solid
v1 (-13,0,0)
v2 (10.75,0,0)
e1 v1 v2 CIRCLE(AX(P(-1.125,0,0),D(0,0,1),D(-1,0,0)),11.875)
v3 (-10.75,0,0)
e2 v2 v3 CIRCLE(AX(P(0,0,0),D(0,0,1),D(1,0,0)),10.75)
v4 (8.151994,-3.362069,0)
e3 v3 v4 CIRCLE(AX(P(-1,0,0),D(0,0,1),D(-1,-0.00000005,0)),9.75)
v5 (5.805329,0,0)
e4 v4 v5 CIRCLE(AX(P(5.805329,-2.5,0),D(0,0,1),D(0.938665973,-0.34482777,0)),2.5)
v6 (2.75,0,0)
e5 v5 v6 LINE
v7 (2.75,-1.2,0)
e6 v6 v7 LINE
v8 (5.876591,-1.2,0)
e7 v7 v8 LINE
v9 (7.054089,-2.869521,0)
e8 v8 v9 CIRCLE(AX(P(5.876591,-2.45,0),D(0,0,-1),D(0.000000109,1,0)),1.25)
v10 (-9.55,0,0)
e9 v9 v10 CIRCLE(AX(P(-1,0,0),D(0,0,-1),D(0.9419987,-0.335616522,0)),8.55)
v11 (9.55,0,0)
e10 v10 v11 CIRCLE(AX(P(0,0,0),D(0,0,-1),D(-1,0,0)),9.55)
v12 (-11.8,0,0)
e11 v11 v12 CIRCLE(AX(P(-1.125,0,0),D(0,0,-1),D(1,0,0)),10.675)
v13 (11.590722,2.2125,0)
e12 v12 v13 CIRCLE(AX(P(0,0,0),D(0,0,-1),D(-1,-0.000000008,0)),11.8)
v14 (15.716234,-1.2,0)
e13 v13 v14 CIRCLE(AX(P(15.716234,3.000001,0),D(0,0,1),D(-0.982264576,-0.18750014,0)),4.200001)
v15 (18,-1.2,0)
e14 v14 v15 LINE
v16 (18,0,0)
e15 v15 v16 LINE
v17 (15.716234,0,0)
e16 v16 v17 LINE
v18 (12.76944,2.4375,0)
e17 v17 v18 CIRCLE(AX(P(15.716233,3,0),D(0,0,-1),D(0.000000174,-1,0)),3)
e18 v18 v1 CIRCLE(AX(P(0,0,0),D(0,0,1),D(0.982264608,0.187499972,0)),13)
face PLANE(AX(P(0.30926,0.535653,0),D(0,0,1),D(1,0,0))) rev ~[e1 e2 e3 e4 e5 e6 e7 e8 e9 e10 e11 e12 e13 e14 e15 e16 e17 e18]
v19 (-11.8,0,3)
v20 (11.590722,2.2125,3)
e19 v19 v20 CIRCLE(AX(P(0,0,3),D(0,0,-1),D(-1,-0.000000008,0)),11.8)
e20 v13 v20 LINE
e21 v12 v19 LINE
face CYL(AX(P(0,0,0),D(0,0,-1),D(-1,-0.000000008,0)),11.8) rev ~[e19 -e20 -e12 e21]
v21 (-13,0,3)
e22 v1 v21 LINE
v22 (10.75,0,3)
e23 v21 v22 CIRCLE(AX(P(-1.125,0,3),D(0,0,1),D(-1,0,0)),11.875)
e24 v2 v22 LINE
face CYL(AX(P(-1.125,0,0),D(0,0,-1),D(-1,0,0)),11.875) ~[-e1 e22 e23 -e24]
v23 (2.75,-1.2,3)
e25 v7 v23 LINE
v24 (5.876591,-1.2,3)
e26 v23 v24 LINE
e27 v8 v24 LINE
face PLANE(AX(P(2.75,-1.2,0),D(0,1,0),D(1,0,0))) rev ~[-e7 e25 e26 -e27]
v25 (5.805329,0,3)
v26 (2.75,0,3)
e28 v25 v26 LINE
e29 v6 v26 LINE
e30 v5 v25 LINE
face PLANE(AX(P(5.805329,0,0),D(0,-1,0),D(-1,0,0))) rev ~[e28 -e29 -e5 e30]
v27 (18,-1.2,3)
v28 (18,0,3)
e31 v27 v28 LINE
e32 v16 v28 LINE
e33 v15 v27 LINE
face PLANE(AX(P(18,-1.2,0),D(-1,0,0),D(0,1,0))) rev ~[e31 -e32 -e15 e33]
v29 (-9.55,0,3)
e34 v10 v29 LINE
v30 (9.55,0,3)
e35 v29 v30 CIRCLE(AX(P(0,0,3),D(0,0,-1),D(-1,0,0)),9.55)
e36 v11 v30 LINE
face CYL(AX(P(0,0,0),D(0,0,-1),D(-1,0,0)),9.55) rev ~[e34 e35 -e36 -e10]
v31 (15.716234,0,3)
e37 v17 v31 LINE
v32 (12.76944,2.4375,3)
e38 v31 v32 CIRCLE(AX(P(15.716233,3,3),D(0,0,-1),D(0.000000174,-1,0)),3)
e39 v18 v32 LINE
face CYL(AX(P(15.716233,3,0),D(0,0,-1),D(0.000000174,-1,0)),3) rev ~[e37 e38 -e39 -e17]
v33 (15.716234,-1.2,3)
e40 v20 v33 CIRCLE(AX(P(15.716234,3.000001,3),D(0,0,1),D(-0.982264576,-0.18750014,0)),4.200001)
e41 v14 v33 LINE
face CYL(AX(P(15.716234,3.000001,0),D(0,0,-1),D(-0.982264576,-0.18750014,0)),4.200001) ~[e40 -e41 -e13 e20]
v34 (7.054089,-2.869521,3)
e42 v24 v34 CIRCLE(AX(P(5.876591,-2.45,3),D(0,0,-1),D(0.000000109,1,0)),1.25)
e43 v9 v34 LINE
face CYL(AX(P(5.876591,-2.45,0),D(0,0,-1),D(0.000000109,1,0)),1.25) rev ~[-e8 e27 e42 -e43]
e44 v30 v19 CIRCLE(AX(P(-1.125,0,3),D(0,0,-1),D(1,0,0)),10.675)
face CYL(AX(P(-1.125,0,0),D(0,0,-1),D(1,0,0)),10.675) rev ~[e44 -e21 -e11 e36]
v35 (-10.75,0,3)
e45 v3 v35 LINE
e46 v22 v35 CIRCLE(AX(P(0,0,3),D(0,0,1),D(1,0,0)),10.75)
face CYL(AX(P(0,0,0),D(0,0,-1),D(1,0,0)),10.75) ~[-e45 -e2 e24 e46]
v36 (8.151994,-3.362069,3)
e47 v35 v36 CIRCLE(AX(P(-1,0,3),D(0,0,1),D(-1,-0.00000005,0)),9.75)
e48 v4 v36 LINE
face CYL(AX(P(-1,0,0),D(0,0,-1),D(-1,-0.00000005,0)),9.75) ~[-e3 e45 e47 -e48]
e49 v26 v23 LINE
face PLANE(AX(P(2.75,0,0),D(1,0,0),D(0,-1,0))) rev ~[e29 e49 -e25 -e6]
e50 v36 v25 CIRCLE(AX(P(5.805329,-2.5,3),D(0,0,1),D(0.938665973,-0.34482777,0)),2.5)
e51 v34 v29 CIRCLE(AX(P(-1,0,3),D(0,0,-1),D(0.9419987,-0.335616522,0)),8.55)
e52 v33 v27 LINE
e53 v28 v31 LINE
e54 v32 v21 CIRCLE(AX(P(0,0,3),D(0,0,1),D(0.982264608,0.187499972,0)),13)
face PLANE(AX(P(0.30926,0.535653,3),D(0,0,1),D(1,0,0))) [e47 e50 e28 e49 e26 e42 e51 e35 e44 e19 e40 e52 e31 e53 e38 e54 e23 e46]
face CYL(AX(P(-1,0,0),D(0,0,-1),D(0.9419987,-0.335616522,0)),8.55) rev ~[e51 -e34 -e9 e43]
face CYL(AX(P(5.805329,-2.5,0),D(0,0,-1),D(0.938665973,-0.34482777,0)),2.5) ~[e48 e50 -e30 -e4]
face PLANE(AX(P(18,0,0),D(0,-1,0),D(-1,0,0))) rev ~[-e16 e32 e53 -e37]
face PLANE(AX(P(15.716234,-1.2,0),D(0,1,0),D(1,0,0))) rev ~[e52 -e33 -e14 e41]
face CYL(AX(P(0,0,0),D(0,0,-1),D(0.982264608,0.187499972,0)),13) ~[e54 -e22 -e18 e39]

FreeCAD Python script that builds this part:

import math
import FreeCAD as App
import Part
import Sketcher

doc = App.newDocument("Part")
body = doc.addObject("PartDesign::Body", "Body")

# Sketch on XY plane
sketch1 = body.newObject("Sketcher::SketchObject", "Sketch")
sketch1.AttachmentSupport = (doc.getObject("XY_Plane"), [""])
sketch1.MapMode = "FlatFace"
sketch1.addGeometry([
    Part.ArcOfCircle(Part.Circle(App.Vector(15.716233, 3, 0), App.Vector(0, 0, 1), 3), math.radians(-169.193083), math.radians(-89.99999)),  # 0
    Part.ArcOfCircle(Part.Circle(App.Vector(0, 0, 0), App.Vector(0, 0, 1), 13), math.radians(10.806921), math.radians(180.000002)),  # 1
    Part.ArcOfCircle(Part.Circle(App.Vector(-1.125, 0, 0), App.Vector(0, 0, 1), 11.875), math.radians(180), math.radians(360)),  # 2
    Part.ArcOfCircle(Part.Circle(App.Vector(0, 0, 0), App.Vector(0, 0, 1), 10.75), math.radians(0), math.radians(180)),  # 3
    Part.ArcOfCircle(Part.Circle(App.Vector(-1, 0, 0), App.Vector(0, 0, 1), 9.75), math.radians(-179.999997), math.radians(-20.171274)),  # 4
    Part.ArcOfCircle(Part.Circle(App.Vector(5.805329, -2.5, 0), App.Vector(0, 0, 1), 2.5), math.radians(-20.171283), math.radians(90.000008)),  # 5
    Part.LineSegment(App.Vector(5.805329, 0, 0), App.Vector(2.75, 0, 0)),  # 6
    Part.LineSegment(App.Vector(2.75, 0, 0), App.Vector(2.75, -1.2, 0)),  # 7
    Part.LineSegment(App.Vector(2.75, -1.2, 0), App.Vector(5.876591, -1.2, 0)),  # 8
    Part.ArcOfCircle(Part.Circle(App.Vector(5.876591, -2.45, 0), App.Vector(0, 0, 1), 1.25), math.radians(-19.610055), math.radians(89.999994)),  # 9
    Part.ArcOfCircle(Part.Circle(App.Vector(-1, 0, 0), App.Vector(0, 0, 1), 8.55), math.radians(-179.999998), math.radians(-19.610033)),  # 10
    Part.ArcOfCircle(Part.Circle(App.Vector(0, 0, 0), App.Vector(0, 0, 1), 9.55), math.radians(0), math.radians(180)),  # 11
    Part.ArcOfCircle(Part.Circle(App.Vector(-1.125, 0, 0), App.Vector(0, 0, 1), 10.675), math.radians(180), math.radians(360)),  # 12
    Part.ArcOfCircle(Part.Circle(App.Vector(0, 0, 0), App.Vector(0, 0, 1), 11.8), math.radians(10.806923), math.radians(180)),  # 13
    Part.ArcOfCircle(Part.Circle(App.Vector(15.716234, 3.000001, 0), App.Vector(0, 0, 1), 4.200001), math.radians(-169.193069), math.radians(-89.999999)),  # 14
    Part.LineSegment(App.Vector(15.716234, -1.2, 0), App.Vector(18, -1.2, 0)),  # 15
    Part.LineSegment(App.Vector(18, -1.2, 0), App.Vector(18, 0, 0)),  # 16
    Part.LineSegment(App.Vector(18, 0, 0), App.Vector(15.716234, 0, 0)),  # 17
], False)
sketch1.addConstraint([
    Sketcher.Constraint("Tangent", 0, 1, 1, 1),
    Sketcher.Constraint("Tangent", 1, 2, 2, 1),
    Sketcher.Constraint("Tangent", 2, 2, 3, 1),
    Sketcher.Constraint("Tangent", 3, 2, 4, 1),
    Sketcher.Constraint("Tangent", 4, 2, 5, 1),
    Sketcher.Constraint("Tangent", 5, 2, 6, 1),
    Sketcher.Constraint("Coincident", 6, 2, 7, 1),
    Sketcher.Constraint("Coincident", 7, 2, 8, 1),
    Sketcher.Constraint("Tangent", 8, 2, 9, 2),
    Sketcher.Constraint("Tangent", 9, 1, 10, 2),
    Sketcher.Constraint("Tangent", 10, 1, 11, 2),
    Sketcher.Constraint("Tangent", 11, 1, 12, 2),
    Sketcher.Constraint("Tangent", 12, 1, 13, 2),
    Sketcher.Constraint("Tangent", 13, 1, 14, 1),
    Sketcher.Constraint("Tangent", 14, 2, 15, 1),
    Sketcher.Constraint("Coincident", 15, 2, 16, 1),
    Sketcher.Constraint("Coincident", 16, 2, 17, 1),
    Sketcher.Constraint("Tangent", 17, 2, 0, 2),
    Sketcher.Constraint("Horizontal", 6),
    Sketcher.Constraint("Vertical", 7),
    Sketcher.Constraint("Horizontal", 8),
    Sketcher.Constraint("Horizontal", 15),
    Sketcher.Constraint("Vertical", 16),
    Sketcher.Constraint("Horizontal", 17),
    Sketcher.Constraint("Coincident", 1, 3, -1, 1),
    Sketcher.Constraint("Coincident", 3, 3, -1, 1),
    Sketcher.Constraint("Coincident", 11, 3, -1, 1),
    Sketcher.Constraint("Coincident", 13, 3, -1, 1),
    Sketcher.Constraint("Coincident", 10, 3, 4, 3),
    Sketcher.Constraint("Coincident", 12, 3, 2, 3),
    Sketcher.Constraint("Coincident", 14, 3, 0, 3),
    Sketcher.Constraint("PointOnObject", 2, 3, -1),
    Sketcher.Constraint("PointOnObject", 4, 3, -1),
    Sketcher.Constraint("PointOnObject", 5, 2, -1),
    Sketcher.Constraint("PointOnObject", 16, 2, -1),
    Sketcher.Constraint("Horizontal", 8, 2, 14, 2),
    Sketcher.Constraint("Radius", 0, 3.0),
    Sketcher.Constraint("Radius", 1, 13.0),
    Sketcher.Constraint("Radius", 5, 2.5),
    Sketcher.Constraint("Radius", 13, 11.8),
    Sketcher.Constraint("Radius", 3, 10.75),
    Sketcher.Constraint("Radius", 4, 9.75),
    Sketcher.Constraint("Radius", 9, 1.25),
    Sketcher.Constraint("DistanceX", -1, 1, 15, 2, 18.0),
    Sketcher.Constraint("DistanceX", -1, 1, 6, 2, 2.75),
])
pad1 = body.newObject("PartDesign::Pad", "Pad")
pad1.Profile = sketch1
pad1.Length = 3

doc.recompute()
